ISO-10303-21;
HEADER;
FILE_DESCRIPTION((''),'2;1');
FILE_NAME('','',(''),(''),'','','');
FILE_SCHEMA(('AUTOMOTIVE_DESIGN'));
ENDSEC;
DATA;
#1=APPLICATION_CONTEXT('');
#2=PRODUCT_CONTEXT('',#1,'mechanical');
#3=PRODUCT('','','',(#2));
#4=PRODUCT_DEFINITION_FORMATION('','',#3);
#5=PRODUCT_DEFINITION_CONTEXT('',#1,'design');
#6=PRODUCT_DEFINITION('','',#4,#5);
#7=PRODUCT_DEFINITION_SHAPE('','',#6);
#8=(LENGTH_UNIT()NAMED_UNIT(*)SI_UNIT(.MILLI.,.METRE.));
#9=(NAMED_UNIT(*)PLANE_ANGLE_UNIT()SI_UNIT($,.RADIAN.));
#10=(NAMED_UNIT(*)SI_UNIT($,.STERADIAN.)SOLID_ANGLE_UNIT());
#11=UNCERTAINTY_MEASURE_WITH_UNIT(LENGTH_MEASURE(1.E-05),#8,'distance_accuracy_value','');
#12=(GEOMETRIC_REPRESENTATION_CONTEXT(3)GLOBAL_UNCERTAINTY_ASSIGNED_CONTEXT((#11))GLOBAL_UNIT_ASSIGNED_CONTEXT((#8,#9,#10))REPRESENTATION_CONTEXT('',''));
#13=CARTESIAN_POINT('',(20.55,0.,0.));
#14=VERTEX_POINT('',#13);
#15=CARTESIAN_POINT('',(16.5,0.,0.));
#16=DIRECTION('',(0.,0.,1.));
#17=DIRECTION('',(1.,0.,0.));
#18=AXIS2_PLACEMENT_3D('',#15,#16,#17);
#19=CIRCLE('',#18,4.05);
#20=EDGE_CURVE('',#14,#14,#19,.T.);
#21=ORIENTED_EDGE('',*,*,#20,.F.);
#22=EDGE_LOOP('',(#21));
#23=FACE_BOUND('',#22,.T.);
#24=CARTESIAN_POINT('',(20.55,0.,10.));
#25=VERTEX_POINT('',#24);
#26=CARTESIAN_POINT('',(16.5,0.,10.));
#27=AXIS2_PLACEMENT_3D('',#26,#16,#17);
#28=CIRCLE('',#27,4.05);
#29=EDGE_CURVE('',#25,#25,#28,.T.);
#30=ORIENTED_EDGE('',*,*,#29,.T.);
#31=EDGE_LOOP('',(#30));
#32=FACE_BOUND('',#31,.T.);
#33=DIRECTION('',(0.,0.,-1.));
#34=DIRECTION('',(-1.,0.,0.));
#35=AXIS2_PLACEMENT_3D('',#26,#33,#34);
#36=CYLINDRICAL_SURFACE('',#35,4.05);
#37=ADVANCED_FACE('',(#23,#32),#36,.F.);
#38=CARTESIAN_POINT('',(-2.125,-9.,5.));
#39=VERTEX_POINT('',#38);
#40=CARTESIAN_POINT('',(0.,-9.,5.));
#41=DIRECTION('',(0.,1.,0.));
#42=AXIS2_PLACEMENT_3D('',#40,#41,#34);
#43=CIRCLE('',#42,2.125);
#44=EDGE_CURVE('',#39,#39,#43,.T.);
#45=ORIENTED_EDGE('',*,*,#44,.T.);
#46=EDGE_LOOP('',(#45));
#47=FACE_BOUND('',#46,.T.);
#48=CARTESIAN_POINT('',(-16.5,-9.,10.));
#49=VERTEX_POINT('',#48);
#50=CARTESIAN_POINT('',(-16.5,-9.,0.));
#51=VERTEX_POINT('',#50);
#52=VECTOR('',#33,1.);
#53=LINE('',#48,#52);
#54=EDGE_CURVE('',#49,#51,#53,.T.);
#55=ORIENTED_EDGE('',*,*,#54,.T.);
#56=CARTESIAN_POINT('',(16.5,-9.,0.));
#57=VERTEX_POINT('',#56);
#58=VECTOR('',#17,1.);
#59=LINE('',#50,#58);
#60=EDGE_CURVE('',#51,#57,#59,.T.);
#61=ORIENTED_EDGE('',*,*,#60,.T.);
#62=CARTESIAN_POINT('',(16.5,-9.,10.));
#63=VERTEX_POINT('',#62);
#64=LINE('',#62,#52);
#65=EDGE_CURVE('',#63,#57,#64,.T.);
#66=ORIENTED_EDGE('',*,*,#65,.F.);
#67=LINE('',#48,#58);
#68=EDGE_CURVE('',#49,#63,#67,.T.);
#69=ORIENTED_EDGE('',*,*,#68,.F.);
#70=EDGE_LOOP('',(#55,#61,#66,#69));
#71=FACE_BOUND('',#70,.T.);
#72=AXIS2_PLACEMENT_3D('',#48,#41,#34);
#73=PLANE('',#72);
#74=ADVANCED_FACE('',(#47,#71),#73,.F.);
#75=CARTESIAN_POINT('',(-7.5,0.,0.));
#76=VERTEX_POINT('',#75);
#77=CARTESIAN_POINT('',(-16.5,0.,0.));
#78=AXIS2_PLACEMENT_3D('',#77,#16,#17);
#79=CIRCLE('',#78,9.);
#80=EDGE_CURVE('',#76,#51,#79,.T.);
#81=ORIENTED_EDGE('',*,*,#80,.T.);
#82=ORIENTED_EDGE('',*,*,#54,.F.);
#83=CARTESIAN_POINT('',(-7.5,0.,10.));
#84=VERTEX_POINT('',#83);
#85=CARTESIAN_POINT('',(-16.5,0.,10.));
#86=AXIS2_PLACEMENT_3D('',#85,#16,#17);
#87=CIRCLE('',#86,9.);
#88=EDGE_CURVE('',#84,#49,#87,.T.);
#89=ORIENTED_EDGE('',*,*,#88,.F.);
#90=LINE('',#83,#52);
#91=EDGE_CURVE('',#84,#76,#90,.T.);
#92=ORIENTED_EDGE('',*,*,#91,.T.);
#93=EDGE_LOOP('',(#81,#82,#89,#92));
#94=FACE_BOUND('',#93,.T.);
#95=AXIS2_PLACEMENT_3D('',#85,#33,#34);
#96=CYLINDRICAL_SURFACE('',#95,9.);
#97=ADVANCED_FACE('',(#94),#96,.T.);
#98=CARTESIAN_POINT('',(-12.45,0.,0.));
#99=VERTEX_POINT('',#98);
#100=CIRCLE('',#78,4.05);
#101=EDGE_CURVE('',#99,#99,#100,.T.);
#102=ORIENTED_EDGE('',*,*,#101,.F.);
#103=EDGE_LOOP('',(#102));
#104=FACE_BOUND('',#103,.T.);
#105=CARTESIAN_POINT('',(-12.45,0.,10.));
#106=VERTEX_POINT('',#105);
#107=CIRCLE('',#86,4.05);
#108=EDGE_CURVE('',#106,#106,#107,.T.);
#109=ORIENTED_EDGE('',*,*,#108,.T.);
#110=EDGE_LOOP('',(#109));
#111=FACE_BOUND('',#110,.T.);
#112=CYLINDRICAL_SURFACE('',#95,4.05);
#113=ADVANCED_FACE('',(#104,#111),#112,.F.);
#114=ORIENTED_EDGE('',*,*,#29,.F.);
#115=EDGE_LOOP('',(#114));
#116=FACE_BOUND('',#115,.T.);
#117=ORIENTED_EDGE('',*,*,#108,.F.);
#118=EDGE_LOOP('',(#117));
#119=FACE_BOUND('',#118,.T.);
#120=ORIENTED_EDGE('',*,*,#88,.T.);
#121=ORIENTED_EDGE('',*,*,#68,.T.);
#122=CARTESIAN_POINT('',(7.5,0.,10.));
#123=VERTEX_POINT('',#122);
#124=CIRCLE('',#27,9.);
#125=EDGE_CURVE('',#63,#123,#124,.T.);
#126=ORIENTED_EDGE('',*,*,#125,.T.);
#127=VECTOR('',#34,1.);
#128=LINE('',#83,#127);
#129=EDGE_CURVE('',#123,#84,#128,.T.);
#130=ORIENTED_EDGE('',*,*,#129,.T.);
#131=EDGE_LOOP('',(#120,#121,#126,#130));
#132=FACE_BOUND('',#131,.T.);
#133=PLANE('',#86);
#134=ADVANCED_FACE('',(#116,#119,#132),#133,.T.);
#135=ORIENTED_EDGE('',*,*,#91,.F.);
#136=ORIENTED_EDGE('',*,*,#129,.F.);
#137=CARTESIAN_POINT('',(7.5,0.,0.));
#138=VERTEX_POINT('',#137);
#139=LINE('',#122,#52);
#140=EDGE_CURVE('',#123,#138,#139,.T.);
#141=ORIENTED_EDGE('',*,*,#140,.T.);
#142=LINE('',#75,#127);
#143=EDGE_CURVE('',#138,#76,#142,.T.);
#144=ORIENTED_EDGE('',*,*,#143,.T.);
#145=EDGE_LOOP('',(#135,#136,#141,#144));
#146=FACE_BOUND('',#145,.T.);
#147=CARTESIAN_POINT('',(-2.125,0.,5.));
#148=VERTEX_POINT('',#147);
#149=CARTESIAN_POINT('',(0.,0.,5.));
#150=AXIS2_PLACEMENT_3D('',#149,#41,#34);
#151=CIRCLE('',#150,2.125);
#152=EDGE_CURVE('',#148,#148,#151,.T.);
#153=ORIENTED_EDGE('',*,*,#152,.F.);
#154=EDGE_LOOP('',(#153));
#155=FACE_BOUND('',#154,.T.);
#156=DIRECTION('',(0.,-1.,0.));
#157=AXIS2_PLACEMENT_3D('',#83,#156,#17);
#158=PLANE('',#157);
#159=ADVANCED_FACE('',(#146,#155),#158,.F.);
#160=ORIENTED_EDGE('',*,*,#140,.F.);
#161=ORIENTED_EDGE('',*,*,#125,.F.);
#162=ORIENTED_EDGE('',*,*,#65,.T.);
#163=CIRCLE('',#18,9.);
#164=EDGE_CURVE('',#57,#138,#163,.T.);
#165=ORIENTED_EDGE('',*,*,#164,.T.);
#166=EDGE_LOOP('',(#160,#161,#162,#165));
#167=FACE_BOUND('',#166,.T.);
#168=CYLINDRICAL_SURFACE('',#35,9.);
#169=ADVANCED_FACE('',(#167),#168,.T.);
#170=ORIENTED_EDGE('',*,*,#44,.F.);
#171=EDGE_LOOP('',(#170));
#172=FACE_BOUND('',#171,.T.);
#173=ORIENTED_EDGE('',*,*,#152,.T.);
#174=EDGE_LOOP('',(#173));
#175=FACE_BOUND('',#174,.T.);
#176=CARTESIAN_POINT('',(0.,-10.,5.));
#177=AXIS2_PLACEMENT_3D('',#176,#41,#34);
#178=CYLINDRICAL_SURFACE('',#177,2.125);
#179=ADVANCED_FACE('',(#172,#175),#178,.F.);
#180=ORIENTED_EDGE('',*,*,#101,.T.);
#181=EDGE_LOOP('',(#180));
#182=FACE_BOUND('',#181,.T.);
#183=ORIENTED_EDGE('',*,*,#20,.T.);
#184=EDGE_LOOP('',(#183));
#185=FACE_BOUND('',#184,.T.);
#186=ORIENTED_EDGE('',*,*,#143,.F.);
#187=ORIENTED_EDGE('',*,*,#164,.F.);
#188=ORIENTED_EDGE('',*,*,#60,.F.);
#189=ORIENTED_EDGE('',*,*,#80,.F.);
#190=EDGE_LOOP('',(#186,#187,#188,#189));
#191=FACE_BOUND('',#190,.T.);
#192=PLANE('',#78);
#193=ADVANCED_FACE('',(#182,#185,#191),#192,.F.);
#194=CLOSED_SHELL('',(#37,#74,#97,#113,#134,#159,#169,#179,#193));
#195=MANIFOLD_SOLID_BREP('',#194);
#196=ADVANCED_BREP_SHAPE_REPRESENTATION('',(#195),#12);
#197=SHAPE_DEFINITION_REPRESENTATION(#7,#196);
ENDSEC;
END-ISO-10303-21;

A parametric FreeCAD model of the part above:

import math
import FreeCAD as App
import Part
import Sketcher
Q = App.Units.Quantity

doc = App.newDocument("Part")
body = doc.addObject("PartDesign::Body", "Body")

# Sketch on XY plane
sketch1 = body.newObject("Sketcher::SketchObject", "Sketch")
sketch1.AttachmentSupport = (doc.getObject("XY_Plane"), [""])
sketch1.MapMode = "FlatFace"
sketch1.addGeometry(Part.LineSegment(App.Vector(-16.5, -9, 0), App.Vector(16.5, -9, 0)), False)
sketch1.addGeometry(Part.ArcOfCircle(Part.Circle(App.Vector(16.5, 0, 0), App.Vector(0, 0, 1), 9), math.radians(-90), math.radians(180)), False)
sketch1.addGeometry(Part.LineSegment(App.Vector(7.5, 0, 0), App.Vector(-7.5, 0, 0)), False)
sketch1.addGeometry(Part.ArcOfCircle(Part.Circle(App.Vector(-16.5, 0, 0), App.Vector(0, 0, 1), 9), math.radians(0), math.radians(270)), False)
sketch1.addGeometry(Part.Circle(App.Vector(-16.5, 0, 0), App.Vector(0, 0, 1), 4.05), False)
sketch1.addGeometry(Part.Circle(App.Vector(16.5, 0, 0), App.Vector(0, 0, 1), 4.05), False)
sketch1.addConstraint(Sketcher.Constraint("Tangent", 0, 2, 1, 1))
sketch1.addConstraint(Sketcher.Constraint("Coincident", 1, 2, 2, 1))
sketch1.addConstraint(Sketcher.Constraint("Coincident", 2, 2, 3, 1))
sketch1.addConstraint(Sketcher.Constraint("Tangent", 3, 2, 0, 1))
sketch1.addConstraint(Sketcher.Constraint("Horizontal", 0))
sketch1.addConstraint(Sketcher.Constraint("Horizontal", 2))
sketch1.addConstraint(Sketcher.Constraint("Coincident", 4, 3, 3, 3))
sketch1.addConstraint(Sketcher.Constraint("Coincident", 5, 3, 1, 3))
sketch1.addConstraint(Sketcher.Constraint("Equal", 1, 3))
sketch1.addConstraint(Sketcher.Constraint("Equal", 4, 5))
sketch1.addConstraint(Sketcher.Constraint("Symmetric", 1, 3, 3, 3, -1, 1))
sketch1.addConstraint(Sketcher.Constraint("PointOnObject", 1, 2, -1))
sketch1.addConstraint(Sketcher.Constraint("Radius", 1, Q("9 mm")))
sketch1.addConstraint(Sketcher.Constraint("Diameter", 4, Q("8.1 mm")))
sketch1.addConstraint(Sketcher.Constraint("DistanceX", 0, 1, 0, 2, Q("33 mm")))
pad1 = body.newObject("PartDesign::Pad", "Pad")
pad1.Profile = sketch1
pad1.Length = 10

# Sketch on XZ plane
sketch2 = body.newObject("Sketcher::SketchObject", "Sketch001")
sketch2.AttachmentSupport = (doc.getObject("XZ_Plane"), [""])
sketch2.MapMode = "FlatFace"
sketch2.addGeometry(Part.Circle(App.Vector(0, 5, 0), App.Vector(0, 0, 1), 2.125), False)
sketch2.addConstraint(Sketcher.Constraint("PointOnObject", 0, 3, -2))
sketch2.addConstraint(Sketcher.Constraint("Diameter", 0, Q("4.25 mm")))
sketch2.addConstraint(Sketcher.Constraint("DistanceY", -1, 1, 0, 3, Q("5 mm")))
pocket1 = body.newObject("PartDesign::Pocket", "Pocket")
pocket1.Profile = sketch2
pocket1.Length = 10
pocket1.Reversed = True

doc.recompute()
